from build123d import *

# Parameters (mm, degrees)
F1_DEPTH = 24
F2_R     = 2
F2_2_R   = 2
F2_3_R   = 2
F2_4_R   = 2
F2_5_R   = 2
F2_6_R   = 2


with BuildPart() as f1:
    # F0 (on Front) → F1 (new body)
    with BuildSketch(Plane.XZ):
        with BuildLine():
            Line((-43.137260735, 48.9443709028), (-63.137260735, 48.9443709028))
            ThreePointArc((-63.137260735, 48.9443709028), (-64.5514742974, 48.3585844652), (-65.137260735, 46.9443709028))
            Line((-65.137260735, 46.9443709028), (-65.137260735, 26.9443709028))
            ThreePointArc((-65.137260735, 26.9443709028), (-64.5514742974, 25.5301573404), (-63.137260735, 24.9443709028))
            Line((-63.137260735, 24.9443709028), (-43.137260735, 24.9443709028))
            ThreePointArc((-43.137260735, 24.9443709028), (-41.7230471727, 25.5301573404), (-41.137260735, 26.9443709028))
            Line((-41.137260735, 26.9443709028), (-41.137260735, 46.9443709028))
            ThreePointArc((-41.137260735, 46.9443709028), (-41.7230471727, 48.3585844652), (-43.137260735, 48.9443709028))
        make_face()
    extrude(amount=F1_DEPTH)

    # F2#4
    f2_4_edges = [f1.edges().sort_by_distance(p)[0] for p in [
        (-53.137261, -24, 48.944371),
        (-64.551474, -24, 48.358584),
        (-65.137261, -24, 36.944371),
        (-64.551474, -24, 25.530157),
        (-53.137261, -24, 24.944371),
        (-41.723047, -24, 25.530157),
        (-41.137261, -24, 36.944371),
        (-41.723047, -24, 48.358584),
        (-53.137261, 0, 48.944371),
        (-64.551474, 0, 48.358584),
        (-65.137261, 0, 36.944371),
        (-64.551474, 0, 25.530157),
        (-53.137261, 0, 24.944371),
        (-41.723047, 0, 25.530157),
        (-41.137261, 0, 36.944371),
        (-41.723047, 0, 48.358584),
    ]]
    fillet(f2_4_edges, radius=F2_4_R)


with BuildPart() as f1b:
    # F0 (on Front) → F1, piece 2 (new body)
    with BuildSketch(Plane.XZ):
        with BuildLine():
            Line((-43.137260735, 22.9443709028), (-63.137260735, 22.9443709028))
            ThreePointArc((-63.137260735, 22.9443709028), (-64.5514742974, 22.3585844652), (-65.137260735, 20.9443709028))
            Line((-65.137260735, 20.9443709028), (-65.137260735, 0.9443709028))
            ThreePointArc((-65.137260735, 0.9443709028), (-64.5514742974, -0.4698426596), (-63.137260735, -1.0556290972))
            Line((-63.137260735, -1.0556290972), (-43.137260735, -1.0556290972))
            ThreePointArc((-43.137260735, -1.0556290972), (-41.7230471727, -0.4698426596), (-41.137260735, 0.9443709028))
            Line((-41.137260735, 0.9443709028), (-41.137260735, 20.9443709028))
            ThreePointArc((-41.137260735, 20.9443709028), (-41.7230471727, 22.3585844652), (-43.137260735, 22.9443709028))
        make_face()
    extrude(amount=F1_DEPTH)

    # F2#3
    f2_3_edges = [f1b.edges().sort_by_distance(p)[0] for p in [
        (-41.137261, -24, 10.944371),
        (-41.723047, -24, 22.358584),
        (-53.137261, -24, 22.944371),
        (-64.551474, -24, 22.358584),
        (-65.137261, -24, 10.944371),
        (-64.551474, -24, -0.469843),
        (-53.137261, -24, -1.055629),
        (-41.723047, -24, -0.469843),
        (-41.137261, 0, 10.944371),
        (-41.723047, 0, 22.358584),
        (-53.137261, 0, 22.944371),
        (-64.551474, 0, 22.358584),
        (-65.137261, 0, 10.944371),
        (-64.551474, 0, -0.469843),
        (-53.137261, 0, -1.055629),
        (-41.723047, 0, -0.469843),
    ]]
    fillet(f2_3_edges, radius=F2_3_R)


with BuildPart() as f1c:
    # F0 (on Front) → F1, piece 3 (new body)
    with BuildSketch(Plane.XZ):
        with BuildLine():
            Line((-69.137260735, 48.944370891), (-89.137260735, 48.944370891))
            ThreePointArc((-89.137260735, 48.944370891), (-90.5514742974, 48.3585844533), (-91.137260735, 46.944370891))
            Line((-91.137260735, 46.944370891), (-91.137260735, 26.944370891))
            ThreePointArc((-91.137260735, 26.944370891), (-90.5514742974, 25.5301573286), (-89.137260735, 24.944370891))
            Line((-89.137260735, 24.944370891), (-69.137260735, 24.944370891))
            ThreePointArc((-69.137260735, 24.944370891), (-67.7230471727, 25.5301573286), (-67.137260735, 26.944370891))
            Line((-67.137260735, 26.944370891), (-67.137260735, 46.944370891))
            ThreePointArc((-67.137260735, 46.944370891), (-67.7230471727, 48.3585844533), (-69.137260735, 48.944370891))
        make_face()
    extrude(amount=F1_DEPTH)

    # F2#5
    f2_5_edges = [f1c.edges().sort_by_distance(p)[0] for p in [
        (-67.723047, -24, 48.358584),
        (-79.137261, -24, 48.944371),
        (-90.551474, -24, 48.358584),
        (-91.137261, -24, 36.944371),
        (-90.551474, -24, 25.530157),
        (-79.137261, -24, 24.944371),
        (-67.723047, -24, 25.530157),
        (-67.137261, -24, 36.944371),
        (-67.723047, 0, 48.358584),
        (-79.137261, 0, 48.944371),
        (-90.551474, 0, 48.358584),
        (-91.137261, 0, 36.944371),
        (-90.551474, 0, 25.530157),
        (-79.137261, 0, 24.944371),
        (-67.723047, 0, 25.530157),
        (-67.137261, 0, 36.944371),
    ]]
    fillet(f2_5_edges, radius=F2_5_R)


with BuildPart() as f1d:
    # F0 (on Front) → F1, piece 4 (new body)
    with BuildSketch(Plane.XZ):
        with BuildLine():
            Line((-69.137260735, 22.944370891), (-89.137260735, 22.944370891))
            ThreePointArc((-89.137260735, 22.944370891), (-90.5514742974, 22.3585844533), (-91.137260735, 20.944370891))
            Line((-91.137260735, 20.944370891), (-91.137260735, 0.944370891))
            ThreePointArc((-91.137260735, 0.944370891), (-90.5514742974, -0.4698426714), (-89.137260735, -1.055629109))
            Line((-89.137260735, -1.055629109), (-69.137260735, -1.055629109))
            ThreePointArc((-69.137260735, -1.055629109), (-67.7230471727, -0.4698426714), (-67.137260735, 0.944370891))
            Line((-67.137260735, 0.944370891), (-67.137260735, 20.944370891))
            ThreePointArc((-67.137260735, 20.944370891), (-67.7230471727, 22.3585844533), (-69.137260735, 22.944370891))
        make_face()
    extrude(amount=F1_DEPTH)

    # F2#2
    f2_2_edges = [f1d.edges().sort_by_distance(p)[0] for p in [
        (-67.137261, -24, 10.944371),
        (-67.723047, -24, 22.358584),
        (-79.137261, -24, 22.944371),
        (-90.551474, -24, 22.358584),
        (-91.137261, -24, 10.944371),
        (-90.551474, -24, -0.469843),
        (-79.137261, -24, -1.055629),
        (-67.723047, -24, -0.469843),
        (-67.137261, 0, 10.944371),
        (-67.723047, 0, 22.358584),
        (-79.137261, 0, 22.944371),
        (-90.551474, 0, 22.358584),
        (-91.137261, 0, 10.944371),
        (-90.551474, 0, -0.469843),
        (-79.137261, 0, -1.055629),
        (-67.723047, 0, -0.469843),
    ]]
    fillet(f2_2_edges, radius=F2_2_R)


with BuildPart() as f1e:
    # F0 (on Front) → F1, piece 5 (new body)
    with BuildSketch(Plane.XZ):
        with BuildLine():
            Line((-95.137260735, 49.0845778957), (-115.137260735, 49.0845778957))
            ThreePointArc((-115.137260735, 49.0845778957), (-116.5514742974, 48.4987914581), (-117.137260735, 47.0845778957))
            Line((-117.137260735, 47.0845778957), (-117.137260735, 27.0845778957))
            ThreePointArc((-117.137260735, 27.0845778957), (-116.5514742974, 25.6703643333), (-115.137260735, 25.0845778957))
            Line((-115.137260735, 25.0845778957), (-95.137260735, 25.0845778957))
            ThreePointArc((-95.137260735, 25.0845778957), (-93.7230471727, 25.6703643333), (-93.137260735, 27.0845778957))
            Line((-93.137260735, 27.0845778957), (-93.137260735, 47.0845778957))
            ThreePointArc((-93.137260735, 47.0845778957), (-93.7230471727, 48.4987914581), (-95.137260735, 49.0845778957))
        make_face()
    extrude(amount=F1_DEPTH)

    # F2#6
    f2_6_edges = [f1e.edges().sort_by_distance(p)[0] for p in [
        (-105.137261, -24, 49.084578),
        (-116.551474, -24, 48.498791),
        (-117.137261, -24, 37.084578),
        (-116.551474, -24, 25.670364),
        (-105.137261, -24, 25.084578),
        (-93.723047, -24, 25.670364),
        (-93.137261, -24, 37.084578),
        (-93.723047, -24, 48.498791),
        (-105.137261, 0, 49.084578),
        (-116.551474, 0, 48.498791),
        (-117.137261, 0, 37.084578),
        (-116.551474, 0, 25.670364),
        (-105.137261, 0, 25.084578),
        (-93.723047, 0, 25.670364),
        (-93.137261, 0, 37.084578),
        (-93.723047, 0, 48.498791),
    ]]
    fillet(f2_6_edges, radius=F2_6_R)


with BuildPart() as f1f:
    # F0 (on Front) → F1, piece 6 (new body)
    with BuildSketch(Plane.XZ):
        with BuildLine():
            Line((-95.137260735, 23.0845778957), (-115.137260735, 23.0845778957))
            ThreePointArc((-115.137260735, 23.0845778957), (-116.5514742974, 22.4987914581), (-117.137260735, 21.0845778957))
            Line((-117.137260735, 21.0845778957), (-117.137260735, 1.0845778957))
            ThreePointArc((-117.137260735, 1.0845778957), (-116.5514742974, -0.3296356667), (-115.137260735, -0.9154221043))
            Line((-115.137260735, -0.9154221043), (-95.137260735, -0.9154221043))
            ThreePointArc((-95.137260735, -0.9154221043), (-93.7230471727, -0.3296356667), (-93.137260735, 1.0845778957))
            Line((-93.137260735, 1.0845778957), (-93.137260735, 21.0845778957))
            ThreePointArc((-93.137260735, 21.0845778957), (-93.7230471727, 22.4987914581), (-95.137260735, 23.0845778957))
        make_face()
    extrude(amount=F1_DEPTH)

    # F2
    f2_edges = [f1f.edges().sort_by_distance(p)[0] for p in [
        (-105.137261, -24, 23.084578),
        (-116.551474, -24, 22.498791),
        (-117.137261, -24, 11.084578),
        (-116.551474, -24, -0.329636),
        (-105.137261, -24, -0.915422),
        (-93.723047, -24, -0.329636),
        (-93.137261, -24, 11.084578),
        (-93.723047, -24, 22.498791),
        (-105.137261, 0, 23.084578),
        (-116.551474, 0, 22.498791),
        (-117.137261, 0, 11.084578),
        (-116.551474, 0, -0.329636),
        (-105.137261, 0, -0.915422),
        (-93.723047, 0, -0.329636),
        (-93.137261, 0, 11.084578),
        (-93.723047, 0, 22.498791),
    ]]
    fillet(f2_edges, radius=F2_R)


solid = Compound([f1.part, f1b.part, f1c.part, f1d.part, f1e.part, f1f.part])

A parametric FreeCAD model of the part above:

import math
import FreeCAD as App
import Part
import Sketcher

V = App.Vector


def edges_at(feature, points):
    """Names of the edges that pass closest to the given points."""
    edges = feature.Shape.Edges
    near = lambda p: min(range(len(edges)), key=lambda i: edges[i].distToShape(Part.Vertex(*p))[0])
    return sorted({f"Edge{near(p) + 1}" for p in points})

doc = App.newDocument("Part")
body = doc.addObject("PartDesign::Body", "Body")

sketch1 = body.newObject("Sketcher::SketchObject", "Sketch")
sketch1.AttachmentSupport = (doc.getObject("XZ_Plane"), [""])
sketch1.MapMode = "FlatFace"
sketch1.addGeometry([
    Part.LineSegment(V(-43.1, 48.9, 0), V(-63.1, 48.9, 0)),
    Part.ArcOfCircle(Part.Circle(V(-63.1, 46.9, 0), V(0, 0, 1), 2), math.radians(90), math.radians(180)),
    Part.LineSegment(V(-65.1, 46.9, 0), V(-65.1, 26.9, 0)),
    Part.ArcOfCircle(Part.Circle(V(-63.1, 26.9, 0), V(0, 0, 1), 2), math.radians(180), math.radians(270)),
    Part.LineSegment(V(-63.1, 24.9, 0), V(-43.1, 24.9, 0)),
    Part.ArcOfCircle(Part.Circle(V(-43.1, 26.9, 0), V(0, 0, 1), 2), math.radians(-90), math.radians(0)),
    Part.LineSegment(V(-41.1, 26.9, 0), V(-41.1, 46.9, 0)),
    Part.ArcOfCircle(Part.Circle(V(-43.1, 46.9, 0), V(0, 0, 1), 2), math.radians(0), math.radians(90)),
], False)
sketch1.addConstraint([
    Sketcher.Constraint("Tangent", 0, 2, 1, 1),
    Sketcher.Constraint("Tangent", 1, 2, 2, 1),
    Sketcher.Constraint("Tangent", 2, 2, 3, 1),
    Sketcher.Constraint("Tangent", 3, 2, 4, 1),
    Sketcher.Constraint("Tangent", 4, 2, 5, 1),
    Sketcher.Constraint("Tangent", 5, 2, 6, 1),
    Sketcher.Constraint("Tangent", 6, 2, 7, 1),
    Sketcher.Constraint("Tangent", 7, 2, 0, 1),
    Sketcher.Constraint("Horizontal", 0),
    Sketcher.Constraint("Vertical", 2),
    Sketcher.Constraint("Horizontal", 4),
    Sketcher.Constraint("Vertical", 6),
    Sketcher.Constraint("Equal", 1, 3),
    Sketcher.Constraint("Equal", 3, 5),
    Sketcher.Constraint("Equal", 5, 7),
    Sketcher.Constraint("Equal", 4, 2),
    Sketcher.Constraint("Radius", 1, 2.0),
    Sketcher.Constraint("DistanceX", 0, 2, 0, 1, 20.0),
    Sketcher.Constraint("DistanceX", 1, 3, -1, 1, 63.137261),
    Sketcher.Constraint("DistanceY", -1, 1, 1, 3, 46.944371),
])
pad1 = body.newObject("PartDesign::Pad", "Pad")
pad1.Profile = sketch1
pad1.Length = 24
doc.recompute()

fillet = body.newObject("PartDesign::Fillet", "Fillet")
fillet.Base = (pad1, edges_at(pad1, [
    (-53.137, -24, 48.944),
    (-64.551, -24, 48.359),
    (-65.137, -24, 36.944),
    (-64.551, -24, 25.53),
    (-53.137, -24, 24.944),
    (-41.723, -24, 25.53),
    (-41.137, -24, 36.944),
    (-41.723, -24, 48.359),
    (-53.137, 0, 48.944),
    (-64.551, 0, 48.359),
    (-65.137, 0, 36.944),
    (-64.551, 0, 25.53),
    (-53.137, 0, 24.944),
    (-41.723, 0, 25.53),
    (-41.137, 0, 36.944),
    (-41.723, 0, 48.359),
]))
fillet.Radius = 2
body2 = doc.addObject("PartDesign::Body", "Body001")

sketch2 = body2.newObject("Sketcher::SketchObject", "Sketch001")
sketch2.AttachmentSupport = (doc.getObject("XZ_Plane001"), [""])
sketch2.MapMode = "FlatFace"
sketch2.addGeometry([
    Part.LineSegment(V(-43.1, 22.9, 0), V(-63.1, 22.9, 0)),
    Part.ArcOfCircle(Part.Circle(V(-63.1, 20.9, 0), V(0, 0, 1), 2), math.radians(90), math.radians(180)),
    Part.LineSegment(V(-65.1, 20.9, 0), V(-65.1, 0.9, 0)),
    Part.ArcOfCircle(Part.Circle(V(-63.1, 0.9, 0), V(0, 0, 1), 2), math.radians(180), math.radians(270)),
    Part.LineSegment(V(-63.1, -1.1, 0), V(-43.1, -1.1, 0)),
    Part.ArcOfCircle(Part.Circle(V(-43.1, 0.9, 0), V(0, 0, 1), 2), math.radians(-90), math.radians(0)),
    Part.LineSegment(V(-41.1, 0.9, 0), V(-41.1, 20.9, 0)),
    Part.ArcOfCircle(Part.Circle(V(-43.1, 20.9, 0), V(0, 0, 1), 2), math.radians(0), math.radians(90)),
], False)
sketch2.addConstraint([
    Sketcher.Constraint("Tangent", 0, 2, 1, 1),
    Sketcher.Constraint("Tangent", 1, 2, 2, 1),
    Sketcher.Constraint("Tangent", 2, 2, 3, 1),
    Sketcher.Constraint("Tangent", 3, 2, 4, 1),
    Sketcher.Constraint("Tangent", 4, 2, 5, 1),
    Sketcher.Constraint("Tangent", 5, 2, 6, 1),
    Sketcher.Constraint("Tangent", 6, 2, 7, 1),
    Sketcher.Constraint("Tangent", 7, 2, 0, 1),
    Sketcher.Constraint("Horizontal", 0),
    Sketcher.Constraint("Vertical", 2),
    Sketcher.Constraint("Horizontal", 4),
    Sketcher.Constraint("Vertical", 6),
    Sketcher.Constraint("Equal", 1, 3),
    Sketcher.Constraint("Equal", 3, 5),
    Sketcher.Constraint("Equal", 5, 7),
    Sketcher.Constraint("Equal", 4, 2),
    Sketcher.Constraint("Radius", 1, 2.0),
    Sketcher.Constraint("DistanceX", 0, 2, 0, 1, 20.0),
    Sketcher.Constraint("DistanceX", 1, 3, -1, 1, 63.137261),
    Sketcher.Constraint("DistanceY", -1, 1, 1, 3, 20.944371),
])
pad2 = body2.newObject("PartDesign::Pad", "Pad001")
pad2.Profile = sketch2
pad2.Length = 24
doc.recompute()

fillet2 = body2.newObject("PartDesign::Fillet", "Fillet001")
fillet2.Base = (pad2, edges_at(pad2, [
    (-41.137, -24, 10.944),
    (-41.723, -24, 22.359),
    (-53.137, -24, 22.944),
    (-64.551, -24, 22.359),
    (-65.137, -24, 10.944),
    (-64.551, -24, -0.47),
    (-53.137, -24, -1.056),
    (-41.723, -24, -0.47),
    (-41.137, 0, 10.944),
    (-41.723, 0, 22.359),
    (-53.137, 0, 22.944),
    (-64.551, 0, 22.359),
    (-65.137, 0, 10.944),
    (-64.551, 0, -0.47),
    (-53.137, 0, -1.056),
    (-41.723, 0, -0.47),
]))
fillet2.Radius = 2
body3 = doc.addObject("PartDesign::Body", "Body002")

sketch3 = body3.newObject("Sketcher::SketchObject", "Sketch002")
sketch3.AttachmentSupport = (doc.getObject("XZ_Plane002"), [""])
sketch3.MapMode = "FlatFace"
sketch3.addGeometry([
    Part.LineSegment(V(-69.1, 48.9, 0), V(-89.1, 48.9, 0)),
    Part.ArcOfCircle(Part.Circle(V(-89.1, 46.9, 0), V(0, 0, 1), 2), math.radians(90), math.radians(180)),
    Part.LineSegment(V(-91.1, 46.9, 0), V(-91.1, 26.9, 0)),
    Part.ArcOfCircle(Part.Circle(V(-89.1, 26.9, 0), V(0, 0, 1), 2), math.radians(180), math.radians(270)),
    Part.LineSegment(V(-89.1, 24.9, 0), V(-69.1, 24.9, 0)),
    Part.ArcOfCircle(Part.Circle(V(-69.1, 26.9, 0), V(0, 0, 1), 2), math.radians(-90), math.radians(0)),
    Part.LineSegment(V(-67.1, 26.9, 0), V(-67.1, 46.9, 0)),
    Part.ArcOfCircle(Part.Circle(V(-69.1, 46.9, 0), V(0, 0, 1), 2), math.radians(0), math.radians(90)),
], False)
sketch3.addConstraint([
    Sketcher.Constraint("Tangent", 0, 2, 1, 1),
    Sketcher.Constraint("Tangent", 1, 2, 2, 1),
    Sketcher.Constraint("Tangent", 2, 2, 3, 1),
    Sketcher.Constraint("Tangent", 3, 2, 4, 1),
    Sketcher.Constraint("Tangent", 4, 2, 5, 1),
    Sketcher.Constraint("Tangent", 5, 2, 6, 1),
    Sketcher.Constraint("Tangent", 6, 2, 7, 1),
    Sketcher.Constraint("Tangent", 7, 2, 0, 1),
    Sketcher.Constraint("Horizontal", 0),
    Sketcher.Constraint("Vertical", 2),
    Sketcher.Constraint("Horizontal", 4),
    Sketcher.Constraint("Vertical", 6),
    Sketcher.Constraint("Equal", 1, 3),
    Sketcher.Constraint("Equal", 3, 5),
    Sketcher.Constraint("Equal", 5, 7),
    Sketcher.Constraint("Equal", 4, 2),
    Sketcher.Constraint("Radius", 1, 2.0),
    Sketcher.Constraint("DistanceX", 0, 2, 0, 1, 20.0),
    Sketcher.Constraint("DistanceX", 1, 3, -1, 1, 89.137261),
    Sketcher.Constraint("DistanceY", -1, 1, 1, 3, 46.944371),
])
pad3 = body3.newObject("PartDesign::Pad", "Pad002")
pad3.Profile = sketch3
pad3.Length = 24
doc.recompute()

fillet3 = body3.newObject("PartDesign::Fillet", "Fillet002")
fillet3.Base = (pad3, edges_at(pad3, [
    (-67.723, -24, 48.359),
    (-79.137, -24, 48.944),
    (-90.551, -24, 48.359),
    (-91.137, -24, 36.944),
    (-90.551, -24, 25.53),
    (-79.137, -24, 24.944),
    (-67.723, -24, 25.53),
    (-67.137, -24, 36.944),
    (-67.723, 0, 48.359),
    (-79.137, 0, 48.944),
    (-90.551, 0, 48.359),
    (-91.137, 0, 36.944),
    (-90.551, 0, 25.53),
    (-79.137, 0, 24.944),
    (-67.723, 0, 25.53),
    (-67.137, 0, 36.944),
]))
fillet3.Radius = 2
body4 = doc.addObject("PartDesign::Body", "Body003")

sketch4 = body4.newObject("Sketcher::SketchObject", "Sketch003")
sketch4.AttachmentSupport = (doc.getObject("XZ_Plane003"), [""])
sketch4.MapMode = "FlatFace"
sketch4.addGeometry([
    Part.LineSegment(V(-69.1, 22.9, 0), V(-89.1, 22.9, 0)),
    Part.ArcOfCircle(Part.Circle(V(-89.1, 20.9, 0), V(0, 0, 1), 2), math.radians(90), math.radians(180)),
    Part.LineSegment(V(-91.1, 20.9, 0), V(-91.1, 0.9, 0)),
    Part.ArcOfCircle(Part.Circle(V(-89.1, 0.9, 0), V(0, 0, 1), 2), math.radians(180), math.radians(270)),
    Part.LineSegment(V(-89.1, -1.1, 0), V(-69.1, -1.1, 0)),
    Part.ArcOfCircle(Part.Circle(V(-69.1, 0.9, 0), V(0, 0, 1), 2), math.radians(-90), math.radians(0)),
    Part.LineSegment(V(-67.1, 0.9, 0), V(-67.1, 20.9, 0)),
    Part.ArcOfCircle(Part.Circle(V(-69.1, 20.9, 0), V(0, 0, 1), 2), math.radians(0), math.radians(90)),
], False)
sketch4.addConstraint([
    Sketcher.Constraint("Tangent", 0, 2, 1, 1),
    Sketcher.Constraint("Tangent", 1, 2, 2, 1),
    Sketcher.Constraint("Tangent", 2, 2, 3, 1),
    Sketcher.Constraint("Tangent", 3, 2, 4, 1),
    Sketcher.Constraint("Tangent", 4, 2, 5, 1),
    Sketcher.Constraint("Tangent", 5, 2, 6, 1),
    Sketcher.Constraint("Tangent", 6, 2, 7, 1),
    Sketcher.Constraint("Tangent", 7, 2, 0, 1),
    Sketcher.Constraint("Horizontal", 0),
    Sketcher.Constraint("Vertical", 2),
    Sketcher.Constraint("Horizontal", 4),
    Sketcher.Constraint("Vertical", 6),
    Sketcher.Constraint("Equal", 1, 3),
    Sketcher.Constraint("Equal", 3, 5),
    Sketcher.Constraint("Equal", 5, 7),
    Sketcher.Constraint("Equal", 4, 2),
    Sketcher.Constraint("Radius", 1, 2.0),
    Sketcher.Constraint("DistanceX", 0, 2, 0, 1, 20.0),
    Sketcher.Constraint("DistanceX", 1, 3, -1, 1, 89.137261),
    Sketcher.Constraint("DistanceY", -1, 1, 1, 3, 20.944371),
])
pad4 = body4.newObject("PartDesign::Pad", "Pad003")
pad4.Profile = sketch4
pad4.Length = 24
doc.recompute()

fillet4 = body4.newObject("PartDesign::Fillet", "Fillet003")
fillet4.Base = (pad4, edges_at(pad4, [
    (-67.137, -24, 10.944),
    (-67.723, -24, 22.359),
    (-79.137, -24, 22.944),
    (-90.551, -24, 22.359),
    (-91.137, -24, 10.944),
    (-90.551, -24, -0.47),
    (-79.137, -24, -1.056),
    (-67.723, -24, -0.47),
    (-67.137, 0, 10.944),
    (-67.723, 0, 22.359),
    (-79.137, 0, 22.944),
    (-90.551, 0, 22.359),
    (-91.137, 0, 10.944),
    (-90.551, 0, -0.47),
    (-79.137, 0, -1.056),
    (-67.723, 0, -0.47),
]))
fillet4.Radius = 2
body5 = doc.addObject("PartDesign::Body", "Body004")

sketch5 = body5.newObject("Sketcher::SketchObject", "Sketch004")
sketch5.AttachmentSupport = (doc.getObject("XZ_Plane004"), [""])
sketch5.MapMode = "FlatFace"
sketch5.addGeometry([
    Part.LineSegment(V(-95.1, 49.1, 0), V(-115.1, 49.1, 0)),
    Part.ArcOfCircle(Part.Circle(V(-115.1, 47.1, 0), V(0, 0, 1), 2), math.radians(90), math.radians(180)),
    Part.LineSegment(V(-117.1, 47.1, 0), V(-117.1, 27.1, 0)),
    Part.ArcOfCircle(Part.Circle(V(-115.1, 27.1, 0), V(0, 0, 1), 2), math.radians(180), math.radians(270)),
    Part.LineSegment(V(-115.1, 25.1, 0), V(-95.1, 25.1, 0)),
    Part.ArcOfCircle(Part.Circle(V(-95.1, 27.1, 0), V(0, 0, 1), 2), math.radians(-90), math.radians(0)),
    Part.LineSegment(V(-93.1, 27.1, 0), V(-93.1, 47.1, 0)),
    Part.ArcOfCircle(Part.Circle(V(-95.1, 47.1, 0), V(0, 0, 1), 2), math.radians(0), math.radians(90)),
], False)
sketch5.addConstraint([
    Sketcher.Constraint("Tangent", 0, 2, 1, 1),
    Sketcher.Constraint("Tangent", 1, 2, 2, 1),
    Sketcher.Constraint("Tangent", 2, 2, 3, 1),
    Sketcher.Constraint("Tangent", 3, 2, 4, 1),
    Sketcher.Constraint("Tangent", 4, 2, 5, 1),
    Sketcher.Constraint("Tangent", 5, 2, 6, 1),
    Sketcher.Constraint("Tangent", 6, 2, 7, 1),
    Sketcher.Constraint("Tangent", 7, 2, 0, 1),
    Sketcher.Constraint("Horizontal", 0),
    Sketcher.Constraint("Vertical", 2),
    Sketcher.Constraint("Horizontal", 4),
    Sketcher.Constraint("Vertical", 6),
    Sketcher.Constraint("Equal", 1, 3),
    Sketcher.Constraint("Equal", 3, 5),
    Sketcher.Constraint("Equal", 5, 7),
    Sketcher.Constraint("Equal", 4, 2),
    Sketcher.Constraint("Radius", 1, 2.0),
    Sketcher.Constraint("DistanceX", 0, 2, 0, 1, 20.0),
    Sketcher.Constraint("DistanceX", 1, 3, -1, 1, 115.137261),
    Sketcher.Constraint("DistanceY", -1, 1, 1, 3, 47.084578),
])
pad5 = body5.newObject("PartDesign::Pad", "Pad004")
pad5.Profile = sketch5
pad5.Length = 24
doc.recompute()

fillet5 = body5.newObject("PartDesign::Fillet", "Fillet004")
fillet5.Base = (pad5, edges_at(pad5, [
    (-105.137, -24, 49.085),
    (-116.551, -24, 48.499),
    (-117.137, -24, 37.085),
    (-116.551, -24, 25.67),
    (-105.137, -24, 25.085),
    (-93.723, -24, 25.67),
    (-93.137, -24, 37.085),
    (-93.723, -24, 48.499),
    (-105.137, 0, 49.085),
    (-116.551, 0, 48.499),
    (-117.137, 0, 37.085),
    (-116.551, 0, 25.67),
    (-105.137, 0, 25.085),
    (-93.723, 0, 25.67),
    (-93.137, 0, 37.085),
    (-93.723, 0, 48.499),
]))
fillet5.Radius = 2
body6 = doc.addObject("PartDesign::Body", "Body005")

sketch6 = body6.newObject("Sketcher::SketchObject", "Sketch005")
sketch6.AttachmentSupport = (doc.getObject("XZ_Plane005"), [""])
sketch6.MapMode = "FlatFace"
sketch6.addGeometry([
    Part.LineSegment(V(-95.1, 23.1, 0), V(-115.1, 23.1, 0)),
    Part.ArcOfCircle(Part.Circle(V(-115.1, 21.1, 0), V(0, 0, 1), 2), math.radians(90), math.radians(180)),
    Part.LineSegment(V(-117.1, 21.1, 0), V(-117.1, 1.1, 0)),
    Part.ArcOfCircle(Part.Circle(V(-115.1, 1.1, 0), V(0, 0, 1), 2), math.radians(180), math.radians(270)),
    Part.LineSegment(V(-115.1, -0.9, 0), V(-95.1, -0.9, 0)),
    Part.ArcOfCircle(Part.Circle(V(-95.1, 1.1, 0), V(0, 0, 1), 2), math.radians(-90), math.radians(0)),
    Part.LineSegment(V(-93.1, 1.1, 0), V(-93.1, 21.1, 0)),
    Part.ArcOfCircle(Part.Circle(V(-95.1, 21.1, 0), V(0, 0, 1), 2), math.radians(0), math.radians(90)),
], False)
sketch6.addConstraint([
    Sketcher.Constraint("Tangent", 0, 2, 1, 1),
    Sketcher.Constraint("Tangent", 1, 2, 2, 1),
    Sketcher.Constraint("Tangent", 2, 2, 3, 1),
    Sketcher.Constraint("Tangent", 3, 2, 4, 1),
    Sketcher.Constraint("Tangent", 4, 2, 5, 1),
    Sketcher.Constraint("Tangent", 5, 2, 6, 1),
    Sketcher.Constraint("Tangent", 6, 2, 7, 1),
    Sketcher.Constraint("Tangent", 7, 2, 0, 1),
    Sketcher.Constraint("Horizontal", 0),
    Sketcher.Constraint("Vertical", 2),
    Sketcher.Constraint("Horizontal", 4),
    Sketcher.Constraint("Vertical", 6),
    Sketcher.Constraint("Equal", 1, 3),
    Sketcher.Constraint("Equal", 3, 5),
    Sketcher.Constraint("Equal", 5, 7),
    Sketcher.Constraint("Equal", 4, 2),
    Sketcher.Constraint("Radius", 1, 2.0),
    Sketcher.Constraint("DistanceX", 0, 2, 0, 1, 20.0),
    Sketcher.Constraint("DistanceX", 1, 3, -1, 1, 115.137261),
    Sketcher.Constraint("DistanceY", -1, 1, 1, 3, 21.084578),
])
pad6 = body6.newObject("PartDesign::Pad", "Pad005")
pad6.Profile = sketch6
pad6.Length = 24
doc.recompute()

fillet6 = body6.newObject("PartDesign::Fillet", "Fillet005")
fillet6.Base = (pad6, edges_at(pad6, [
    (-105.137, -24, 23.085),
    (-116.551, -24, 22.499),
    (-117.137, -24, 11.085),
    (-116.551, -24, -0.33),
    (-105.137, -24, -0.915),
    (-93.723, -24, -0.33),
    (-93.137, -24, 11.085),
    (-93.723, -24, 22.499),
    (-105.137, 0, 23.085),
    (-116.551, 0, 22.499),
    (-117.137, 0, 11.085),
    (-116.551, 0, -0.33),
    (-105.137, 0, -0.915),
    (-93.723, 0, -0.33),
    (-93.137, 0, 11.085),
    (-93.723, 0, 22.499),
]))
fillet6.Radius = 2

doc.recompute()
